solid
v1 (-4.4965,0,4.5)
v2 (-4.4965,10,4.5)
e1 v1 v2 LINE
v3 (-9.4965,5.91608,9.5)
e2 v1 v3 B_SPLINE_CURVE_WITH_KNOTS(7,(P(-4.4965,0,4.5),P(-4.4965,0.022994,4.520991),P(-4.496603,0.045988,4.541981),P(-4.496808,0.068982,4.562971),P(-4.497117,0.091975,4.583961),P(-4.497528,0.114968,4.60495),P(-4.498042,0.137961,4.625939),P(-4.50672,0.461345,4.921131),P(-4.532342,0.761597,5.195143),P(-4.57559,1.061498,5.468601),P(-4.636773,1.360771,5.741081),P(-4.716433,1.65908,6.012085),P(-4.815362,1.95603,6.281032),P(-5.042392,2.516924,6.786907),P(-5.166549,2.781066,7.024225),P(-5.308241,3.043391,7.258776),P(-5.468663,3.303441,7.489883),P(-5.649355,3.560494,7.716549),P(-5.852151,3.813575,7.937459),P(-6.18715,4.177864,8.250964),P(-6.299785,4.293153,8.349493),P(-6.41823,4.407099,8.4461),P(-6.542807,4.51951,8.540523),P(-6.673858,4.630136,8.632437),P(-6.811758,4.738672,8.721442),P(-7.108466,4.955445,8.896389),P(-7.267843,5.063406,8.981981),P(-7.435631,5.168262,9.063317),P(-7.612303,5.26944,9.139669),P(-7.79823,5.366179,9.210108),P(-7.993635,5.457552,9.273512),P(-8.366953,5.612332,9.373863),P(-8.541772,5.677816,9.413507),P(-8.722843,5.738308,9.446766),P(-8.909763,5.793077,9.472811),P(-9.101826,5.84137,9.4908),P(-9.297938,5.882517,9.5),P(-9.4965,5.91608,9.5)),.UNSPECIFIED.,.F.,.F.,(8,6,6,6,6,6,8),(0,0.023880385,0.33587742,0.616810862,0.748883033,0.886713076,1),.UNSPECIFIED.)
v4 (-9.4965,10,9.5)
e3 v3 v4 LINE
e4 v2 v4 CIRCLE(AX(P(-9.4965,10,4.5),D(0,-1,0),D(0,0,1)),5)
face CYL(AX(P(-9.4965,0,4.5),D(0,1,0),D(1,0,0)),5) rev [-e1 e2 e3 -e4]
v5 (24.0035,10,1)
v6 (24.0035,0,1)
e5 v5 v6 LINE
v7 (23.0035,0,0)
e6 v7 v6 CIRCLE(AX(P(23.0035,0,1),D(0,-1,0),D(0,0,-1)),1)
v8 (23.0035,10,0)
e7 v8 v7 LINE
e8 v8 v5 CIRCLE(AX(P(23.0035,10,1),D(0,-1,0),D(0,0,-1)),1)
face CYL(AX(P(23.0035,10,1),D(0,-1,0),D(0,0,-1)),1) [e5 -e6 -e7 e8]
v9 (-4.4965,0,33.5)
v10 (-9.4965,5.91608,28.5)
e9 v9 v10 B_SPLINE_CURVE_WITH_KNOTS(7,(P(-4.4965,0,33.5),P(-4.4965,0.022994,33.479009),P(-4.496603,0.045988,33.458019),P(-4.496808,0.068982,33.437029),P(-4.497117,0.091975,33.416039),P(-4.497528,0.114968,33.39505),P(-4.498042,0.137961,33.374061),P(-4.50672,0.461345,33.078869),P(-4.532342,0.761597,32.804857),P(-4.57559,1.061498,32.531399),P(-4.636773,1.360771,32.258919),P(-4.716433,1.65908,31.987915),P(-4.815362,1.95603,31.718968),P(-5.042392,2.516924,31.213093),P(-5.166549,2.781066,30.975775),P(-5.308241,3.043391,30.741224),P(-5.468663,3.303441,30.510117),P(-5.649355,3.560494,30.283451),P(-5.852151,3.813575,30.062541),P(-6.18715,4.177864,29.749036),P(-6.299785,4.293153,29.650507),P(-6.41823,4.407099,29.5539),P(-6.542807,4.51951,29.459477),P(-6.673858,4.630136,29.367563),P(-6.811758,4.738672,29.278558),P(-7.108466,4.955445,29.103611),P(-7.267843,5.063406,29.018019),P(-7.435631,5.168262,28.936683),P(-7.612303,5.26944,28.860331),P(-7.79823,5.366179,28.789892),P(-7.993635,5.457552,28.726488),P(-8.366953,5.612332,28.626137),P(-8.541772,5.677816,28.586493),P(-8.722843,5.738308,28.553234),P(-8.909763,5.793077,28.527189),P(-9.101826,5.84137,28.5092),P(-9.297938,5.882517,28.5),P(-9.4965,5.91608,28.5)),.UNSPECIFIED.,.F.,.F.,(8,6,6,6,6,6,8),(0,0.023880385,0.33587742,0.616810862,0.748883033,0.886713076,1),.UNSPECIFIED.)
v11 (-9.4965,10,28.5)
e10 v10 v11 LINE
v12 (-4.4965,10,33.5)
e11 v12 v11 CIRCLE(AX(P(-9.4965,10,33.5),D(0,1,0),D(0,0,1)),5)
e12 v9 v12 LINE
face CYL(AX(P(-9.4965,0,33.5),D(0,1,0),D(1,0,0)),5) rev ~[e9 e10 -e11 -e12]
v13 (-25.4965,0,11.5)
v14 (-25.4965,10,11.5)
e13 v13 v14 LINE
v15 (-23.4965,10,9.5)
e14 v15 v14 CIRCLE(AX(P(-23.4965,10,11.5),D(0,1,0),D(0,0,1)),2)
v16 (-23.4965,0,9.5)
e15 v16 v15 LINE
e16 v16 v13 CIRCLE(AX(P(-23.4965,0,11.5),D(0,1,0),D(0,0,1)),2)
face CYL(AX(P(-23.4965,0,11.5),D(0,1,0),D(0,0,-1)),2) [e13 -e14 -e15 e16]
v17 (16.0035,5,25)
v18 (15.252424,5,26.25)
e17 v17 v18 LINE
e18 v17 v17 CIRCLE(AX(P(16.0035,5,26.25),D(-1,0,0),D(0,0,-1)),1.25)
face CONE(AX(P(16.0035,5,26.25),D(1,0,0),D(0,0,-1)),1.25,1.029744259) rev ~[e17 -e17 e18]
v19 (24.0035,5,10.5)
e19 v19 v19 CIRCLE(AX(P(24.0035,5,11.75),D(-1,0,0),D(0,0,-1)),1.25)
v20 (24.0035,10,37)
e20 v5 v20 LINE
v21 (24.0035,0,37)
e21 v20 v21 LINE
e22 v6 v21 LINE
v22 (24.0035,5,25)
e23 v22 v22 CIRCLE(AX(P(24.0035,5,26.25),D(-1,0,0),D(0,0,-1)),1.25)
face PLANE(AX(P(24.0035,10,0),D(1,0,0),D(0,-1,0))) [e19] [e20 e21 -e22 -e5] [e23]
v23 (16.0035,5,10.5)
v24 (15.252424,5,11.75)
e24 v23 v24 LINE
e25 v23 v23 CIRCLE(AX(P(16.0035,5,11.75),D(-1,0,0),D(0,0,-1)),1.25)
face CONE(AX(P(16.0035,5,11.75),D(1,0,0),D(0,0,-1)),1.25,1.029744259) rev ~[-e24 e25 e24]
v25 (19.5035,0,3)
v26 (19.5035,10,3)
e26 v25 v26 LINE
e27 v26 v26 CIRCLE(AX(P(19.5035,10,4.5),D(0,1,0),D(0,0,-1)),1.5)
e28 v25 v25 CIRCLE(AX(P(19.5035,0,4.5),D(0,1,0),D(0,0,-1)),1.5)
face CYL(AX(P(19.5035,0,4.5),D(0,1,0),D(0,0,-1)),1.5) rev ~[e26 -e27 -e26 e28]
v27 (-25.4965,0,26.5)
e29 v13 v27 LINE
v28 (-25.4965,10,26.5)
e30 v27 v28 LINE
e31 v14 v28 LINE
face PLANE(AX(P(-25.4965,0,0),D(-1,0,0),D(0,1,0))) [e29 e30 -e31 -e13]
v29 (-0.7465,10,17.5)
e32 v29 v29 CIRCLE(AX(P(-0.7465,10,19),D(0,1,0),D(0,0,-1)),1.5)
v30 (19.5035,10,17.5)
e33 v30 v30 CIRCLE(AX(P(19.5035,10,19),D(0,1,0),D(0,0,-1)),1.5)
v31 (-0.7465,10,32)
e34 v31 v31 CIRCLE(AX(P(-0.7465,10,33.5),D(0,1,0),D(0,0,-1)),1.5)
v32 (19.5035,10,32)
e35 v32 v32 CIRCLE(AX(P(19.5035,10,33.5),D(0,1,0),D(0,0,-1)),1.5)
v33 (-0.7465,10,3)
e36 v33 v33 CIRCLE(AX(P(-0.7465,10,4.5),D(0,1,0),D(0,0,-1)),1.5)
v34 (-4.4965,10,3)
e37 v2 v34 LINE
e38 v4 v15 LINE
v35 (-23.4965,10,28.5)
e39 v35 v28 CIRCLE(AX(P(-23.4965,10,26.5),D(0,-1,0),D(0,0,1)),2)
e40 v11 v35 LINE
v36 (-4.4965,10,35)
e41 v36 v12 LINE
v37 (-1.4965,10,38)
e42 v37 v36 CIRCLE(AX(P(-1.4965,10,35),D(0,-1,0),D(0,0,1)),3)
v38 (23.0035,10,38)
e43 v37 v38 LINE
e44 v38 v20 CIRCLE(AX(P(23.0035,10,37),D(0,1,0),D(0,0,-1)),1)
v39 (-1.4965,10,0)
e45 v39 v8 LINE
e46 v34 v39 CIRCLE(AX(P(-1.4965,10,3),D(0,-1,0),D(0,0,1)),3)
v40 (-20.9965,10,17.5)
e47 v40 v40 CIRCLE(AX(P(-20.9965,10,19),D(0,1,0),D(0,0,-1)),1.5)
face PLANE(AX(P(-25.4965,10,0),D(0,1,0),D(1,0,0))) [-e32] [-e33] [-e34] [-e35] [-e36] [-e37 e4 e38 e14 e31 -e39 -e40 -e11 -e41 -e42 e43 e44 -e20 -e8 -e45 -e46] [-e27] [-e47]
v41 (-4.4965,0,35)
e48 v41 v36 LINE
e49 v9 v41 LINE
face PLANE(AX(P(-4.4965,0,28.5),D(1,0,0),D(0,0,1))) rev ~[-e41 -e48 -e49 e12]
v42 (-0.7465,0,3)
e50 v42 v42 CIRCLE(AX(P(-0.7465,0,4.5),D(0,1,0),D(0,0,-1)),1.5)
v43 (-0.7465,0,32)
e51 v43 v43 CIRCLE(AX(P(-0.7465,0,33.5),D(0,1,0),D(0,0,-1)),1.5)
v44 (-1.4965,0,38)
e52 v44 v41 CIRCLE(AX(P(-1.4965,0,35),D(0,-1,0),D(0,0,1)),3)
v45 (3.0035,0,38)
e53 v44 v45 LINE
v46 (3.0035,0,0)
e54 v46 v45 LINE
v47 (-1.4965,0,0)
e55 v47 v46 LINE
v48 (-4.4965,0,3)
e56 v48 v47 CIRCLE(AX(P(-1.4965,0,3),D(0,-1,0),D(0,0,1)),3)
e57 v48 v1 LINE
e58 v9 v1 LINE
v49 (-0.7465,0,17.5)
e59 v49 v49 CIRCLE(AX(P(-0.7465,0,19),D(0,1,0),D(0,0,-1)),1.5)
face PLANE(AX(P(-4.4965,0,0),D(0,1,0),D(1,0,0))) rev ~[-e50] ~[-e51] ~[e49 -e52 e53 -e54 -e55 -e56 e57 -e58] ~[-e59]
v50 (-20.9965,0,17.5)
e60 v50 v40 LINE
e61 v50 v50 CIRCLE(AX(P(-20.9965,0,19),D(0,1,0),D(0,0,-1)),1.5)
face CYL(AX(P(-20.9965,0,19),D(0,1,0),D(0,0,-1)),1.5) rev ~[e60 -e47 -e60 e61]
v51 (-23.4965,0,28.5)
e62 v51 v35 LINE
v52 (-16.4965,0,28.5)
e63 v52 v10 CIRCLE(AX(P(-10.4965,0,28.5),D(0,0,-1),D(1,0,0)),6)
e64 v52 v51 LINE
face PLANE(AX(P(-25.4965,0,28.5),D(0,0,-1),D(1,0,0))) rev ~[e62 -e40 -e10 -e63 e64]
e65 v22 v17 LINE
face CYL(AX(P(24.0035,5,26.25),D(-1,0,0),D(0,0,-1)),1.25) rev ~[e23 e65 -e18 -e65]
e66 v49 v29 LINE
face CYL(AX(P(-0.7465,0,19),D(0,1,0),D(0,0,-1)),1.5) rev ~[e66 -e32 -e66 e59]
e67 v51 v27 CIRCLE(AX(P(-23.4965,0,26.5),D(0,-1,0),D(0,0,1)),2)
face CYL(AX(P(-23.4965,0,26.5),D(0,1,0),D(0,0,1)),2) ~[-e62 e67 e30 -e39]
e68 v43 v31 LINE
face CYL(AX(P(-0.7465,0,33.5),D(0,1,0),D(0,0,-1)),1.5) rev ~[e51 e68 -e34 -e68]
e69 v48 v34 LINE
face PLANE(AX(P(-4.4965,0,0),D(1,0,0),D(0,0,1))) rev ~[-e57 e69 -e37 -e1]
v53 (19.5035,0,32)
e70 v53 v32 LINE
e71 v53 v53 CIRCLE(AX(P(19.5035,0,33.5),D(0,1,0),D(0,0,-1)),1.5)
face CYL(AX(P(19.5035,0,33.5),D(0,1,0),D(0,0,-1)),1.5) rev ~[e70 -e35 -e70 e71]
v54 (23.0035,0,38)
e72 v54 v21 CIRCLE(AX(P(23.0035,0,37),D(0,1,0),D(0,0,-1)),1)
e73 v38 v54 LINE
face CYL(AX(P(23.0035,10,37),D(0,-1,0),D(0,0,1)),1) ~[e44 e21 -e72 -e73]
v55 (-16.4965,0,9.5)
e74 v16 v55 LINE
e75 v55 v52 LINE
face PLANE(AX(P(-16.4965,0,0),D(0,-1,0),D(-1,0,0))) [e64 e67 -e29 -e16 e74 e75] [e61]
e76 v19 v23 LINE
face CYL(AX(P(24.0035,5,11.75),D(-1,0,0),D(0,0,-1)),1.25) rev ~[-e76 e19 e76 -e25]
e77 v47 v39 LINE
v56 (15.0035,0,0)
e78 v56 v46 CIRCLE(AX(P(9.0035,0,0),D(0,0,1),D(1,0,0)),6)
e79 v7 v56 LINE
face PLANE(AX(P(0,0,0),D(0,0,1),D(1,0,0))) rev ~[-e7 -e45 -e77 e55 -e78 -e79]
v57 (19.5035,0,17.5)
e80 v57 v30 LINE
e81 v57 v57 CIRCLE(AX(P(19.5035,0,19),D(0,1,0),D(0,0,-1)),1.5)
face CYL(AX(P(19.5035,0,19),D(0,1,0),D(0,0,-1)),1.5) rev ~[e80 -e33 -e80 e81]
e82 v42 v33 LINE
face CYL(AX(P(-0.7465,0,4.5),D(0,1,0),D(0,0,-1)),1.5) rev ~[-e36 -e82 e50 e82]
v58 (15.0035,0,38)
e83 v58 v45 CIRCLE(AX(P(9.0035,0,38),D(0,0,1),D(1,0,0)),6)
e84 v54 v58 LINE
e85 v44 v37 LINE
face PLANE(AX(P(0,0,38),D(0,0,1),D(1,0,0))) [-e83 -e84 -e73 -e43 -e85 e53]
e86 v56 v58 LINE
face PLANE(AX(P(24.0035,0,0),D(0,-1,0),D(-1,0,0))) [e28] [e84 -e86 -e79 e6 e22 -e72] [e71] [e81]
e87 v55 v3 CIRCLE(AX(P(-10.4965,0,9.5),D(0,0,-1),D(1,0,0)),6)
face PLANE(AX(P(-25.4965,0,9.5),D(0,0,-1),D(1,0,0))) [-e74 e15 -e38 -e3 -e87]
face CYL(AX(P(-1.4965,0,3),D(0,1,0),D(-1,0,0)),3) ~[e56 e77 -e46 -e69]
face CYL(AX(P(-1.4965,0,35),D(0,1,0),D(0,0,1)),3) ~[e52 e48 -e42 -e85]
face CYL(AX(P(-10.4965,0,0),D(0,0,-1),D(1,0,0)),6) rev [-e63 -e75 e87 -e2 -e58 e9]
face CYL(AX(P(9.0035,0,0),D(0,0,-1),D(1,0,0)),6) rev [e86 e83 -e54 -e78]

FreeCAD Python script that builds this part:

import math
import FreeCAD as App
import Part
import Sketcher
from FreeCAD import Vector


def edges_at(feature, points):
    """Names of the edges that pass closest to the given points."""
    edges = feature.Shape.Edges
    near = lambda p: min(range(len(edges)), key=lambda i: edges[i].distToShape(Part.Vertex(*p))[0])
    return sorted({f"Edge{near(p) + 1}" for p in points})

doc = App.newDocument("Part")
body = doc.addObject("PartDesign::Body", "Body")

# Sketch on XY plane
sketch1 = doc.addObject("Sketcher::SketchObject", "Sketch")
body.addObject(sketch1)
sketch1.AttachmentSupport = (doc.XY_Plane, [""])
sketch1.MapMode = "FlatFace"
sketch1.addGeometry([
    Part.ArcOfCircle(Part.Circle(Vector(9, 0, 0), Vector(0, 0, 1), 6), math.radians(0), math.radians(180)),  # 0
    Part.LineSegment(Vector(15, 0, 0), Vector(24, 0, 0)),  # 1
    Part.LineSegment(Vector(24, 0, 0), Vector(24, 10, 0)),  # 2
    Part.LineSegment(Vector(24, 10, 0), Vector(-25, 10, 0)),  # 3
    Part.LineSegment(Vector(-25, 10, 0), Vector(-25, 0, 0)),  # 4
    Part.LineSegment(Vector(-25, 0, 0), Vector(-16, 0, 0)),  # 5
    Part.ArcOfCircle(Part.Circle(Vector(-10, 0, 0), Vector(0, 0, 1), 6), math.radians(0), math.radians(180)),  # 6
    Part.LineSegment(Vector(-4, 0, 0), Vector(3, 0, 0)),  # 7
], False)
sketch1.addConstraint([
    Sketcher.Constraint("Coincident", 0, 1, 1, 1),
    Sketcher.Constraint("Coincident", 1, 2, 2, 1),
    Sketcher.Constraint("Coincident", 2, 2, 3, 1),
    Sketcher.Constraint("Coincident", 3, 2, 4, 1),
    Sketcher.Constraint("Coincident", 4, 2, 5, 1),
    Sketcher.Constraint("Coincident", 5, 2, 6, 2),
    Sketcher.Constraint("Coincident", 6, 1, 7, 1),
    Sketcher.Constraint("Coincident", 7, 2, 0, 2),
    Sketcher.Constraint("Horizontal", 1),
    Sketcher.Constraint("Vertical", 2),
    Sketcher.Constraint("Horizontal", 3),
    Sketcher.Constraint("Vertical", 4),
    Sketcher.Constraint("Horizontal", 5),
    Sketcher.Constraint("Horizontal", 7),
    Sketcher.Constraint("Equal", 0, 6),
    Sketcher.Constraint("PointOnObject", 0, 3, -1),
    Sketcher.Constraint("PointOnObject", 6, 3, -1),
    Sketcher.Constraint("PointOnObject", 0, 1, -1),
    Sketcher.Constraint("PointOnObject", 4, 2, -1),
    Sketcher.Constraint("PointOnObject", 6, 1, -1),
    Sketcher.Constraint("Equal", 1, 5),
    Sketcher.Constraint("Radius", 0, 6.0),
    Sketcher.Constraint("DistanceX", 1, 1, 1, 2, 9.0),
    Sketcher.Constraint("DistanceY", 2, 1, 2, 2, 10.0),
    Sketcher.Constraint("DistanceX", 6, 3, 0, 3, 19.5),
    Sketcher.Constraint("DistanceX", -1, 1, 0, 3, 9.0035),
])
pad1 = doc.addObject("PartDesign::Pad", "Pad")
body.addObject(pad1)
pad1.Profile = sketch1
pad1.Length = 38

# Sketch on XZ plane
sketch2 = doc.addObject("Sketcher::SketchObject", "Sketch001")
body.addObject(sketch2)
sketch2.AttachmentSupport = (doc.XZ_Plane, [""])
sketch2.MapMode = "FlatFace"
sketch2.addGeometry([
    Part.LineSegment(Vector(-25, 10, 0), Vector(-25, 0, 0)),  # 0
    Part.LineSegment(Vector(-25, 0, 0), Vector(-4, 0, 0)),  # 1
    Part.LineSegment(Vector(-4, 0, 0), Vector(-4, 10, 0)),  # 2
    Part.LineSegment(Vector(-4, 10, 0), Vector(-25, 10, 0)),  # 3
    Part.LineSegment(Vector(-25, 38, 0), Vector(-25, 28, 0)),  # 4
    Part.LineSegment(Vector(-25, 28, 0), Vector(-4, 28, 0)),  # 5
    Part.LineSegment(Vector(-4, 28, 0), Vector(-4, 38, 0)),  # 6
    Part.LineSegment(Vector(-4, 38, 0), Vector(-25, 38, 0)),  # 7
], False)
sketch2.addConstraint([
    Sketcher.Constraint("Coincident", 0, 2, 1, 1),
    Sketcher.Constraint("Coincident", 1, 2, 2, 1),
    Sketcher.Constraint("Coincident", 2, 2, 3, 1),
    Sketcher.Constraint("Coincident", 3, 2, 0, 1),
    Sketcher.Constraint("Coincident", 4, 2, 5, 1),
    Sketcher.Constraint("Coincident", 5, 2, 6, 1),
    Sketcher.Constraint("Coincident", 6, 2, 7, 1),
    Sketcher.Constraint("Coincident", 7, 2, 4, 1),
    Sketcher.Constraint("Vertical", 0),
    Sketcher.Constraint("Horizontal", 1),
    Sketcher.Constraint("Vertical", 2),
    Sketcher.Constraint("Horizontal", 3),
    Sketcher.Constraint("Vertical", 4),
    Sketcher.Constraint("Horizontal", 5),
    Sketcher.Constraint("Vertical", 6),
    Sketcher.Constraint("Horizontal", 7),
    Sketcher.Constraint("PointOnObject", 0, 2, -1),
    Sketcher.Constraint("Vertical", 3, 2, 4, 2),
    Sketcher.Constraint("Vertical", 2, 2, 5, 2),
    Sketcher.Constraint("Equal", 2, 4),
    Sketcher.Constraint("DistanceY", 0, 2, 0, 1, 9.5),
    Sketcher.Constraint("DistanceY", 3, 2, 4, 2, 19.0),
    Sketcher.Constraint("DistanceX", 1, 1, 1, 2, 21.0),
    Sketcher.Constraint("DistanceX", 0, 2, -1, 1, 25.4965),
])
pocket1 = doc.addObject("PartDesign::Pocket", "Pocket")
body.addObject(pocket1)
pocket1.Profile = sketch2
pocket1.Type = "ThroughAll"
doc.recompute()

fillet = doc.addObject("PartDesign::Fillet", "Fillet")
body.addObject(fillet)
fillet.Base = (pocket1, edges_at(pocket1, [(-4.497, 5, 28.5), (-4.497, 5, 9.5)]))
fillet.Radius = 5
doc.recompute()

fillet2 = doc.addObject("PartDesign::Fillet", "Fillet001")
body.addObject(fillet2)
fillet2.Base = (fillet, edges_at(fillet, [(-4.497, 5, 0), (-4.497, 5, 38)]))
fillet2.Radius = 3
doc.recompute()

fillet3 = doc.addObject("PartDesign::Fillet", "Fillet002")
body.addObject(fillet3)
fillet3.Base = (fillet2, edges_at(fillet2, [(24.003, 5, 38), (24.003, 5, 0)]))
fillet3.Radius = 1
doc.recompute()

fillet4 = doc.addObject("PartDesign::Fillet", "Fillet003")
body.addObject(fillet4)
fillet4.Base = (fillet3, edges_at(fillet3, [(-25.497, 5, 9.5), (-25.497, 5, 28.5)]))
fillet4.Radius = 2

# Sketch on XZ plane
sketch3 = doc.addObject("Sketcher::SketchObject", "Sketch002")
body.addObject(sketch3)
sketch3.AttachmentSupport = (doc.XZ_Plane, [""])
sketch3.MapMode = "FlatFace"
sketch3.addGeometry([
    Part.Circle(Vector(-0.7, 4.5, 0), Vector(0, 0, 1), 1.5),  # 0
    Part.Circle(Vector(-0.7, 19, 0), Vector(0, 0, 1), 1.5),  # 1
    Part.Circle(Vector(-0.7, 33.5, 0), Vector(0, 0, 1), 1.5),  # 2
    Part.Circle(Vector(19.5, 4.5, 0), Vector(0, 0, 1), 1.5),  # 3
    Part.Circle(Vector(19.5, 19, 0), Vector(0, 0, 1), 1.5),  # 4
    Part.Circle(Vector(19.5, 33.5, 0), Vector(0, 0, 1), 1.5),  # 5
    Part.Circle(Vector(-21, 19, 0), Vector(0, 0, 1), 1.5),  # 6
], False)
sketch3.addConstraint([
    Sketcher.Constraint("Equal", 0, 1),
    Sketcher.Constraint("Equal", 1, 2),
    Sketcher.Constraint("Equal", 2, 3),
    Sketcher.Constraint("Equal", 3, 4),
    Sketcher.Constraint("Equal", 4, 5),
    Sketcher.Constraint("Equal", 5, 6),
    Sketcher.Constraint("Horizontal", 0, 3, 3, 3),
    Sketcher.Constraint("Horizontal", 1, 3, 4, 3),
    Sketcher.Constraint("Horizontal", 2, 3, 5, 3),
    Sketcher.Constraint("Horizontal", 4, 3, 6, 3),
    Sketcher.Constraint("Vertical", 0, 3, 1, 3),
    Sketcher.Constraint("Vertical", 1, 3, 2, 3),
    Sketcher.Constraint("Vertical", 3, 3, 4, 3),
    Sketcher.Constraint("Vertical", 4, 3, 5, 3),
    Sketcher.Constraint("Diameter", 0, 3.0),
    Sketcher.Constraint("DistanceY", -1, 1, 1, 3, 19.0),
    Sketcher.Constraint("DistanceY", 0, 3, 2, 3, 29.0),
    Sketcher.Constraint("DistanceY", -1, 1, 0, 3, 4.5),
    Sketcher.Constraint("DistanceX", 6, 3, 4, 3, 40.5),
    Sketcher.Constraint("DistanceX", 0, 3, 3, 3, 20.25),
    Sketcher.Constraint("DistanceX", 0, 3, -1, 1, 0.7465),
])
doc.recompute()
hole = doc.addObject("PartDesign::Hole", "Hole")
body.addObject(hole)
hole.Profile = sketch3
hole.ThreadType = "None"
hole.Diameter = 3
hole.DepthType = "ThroughAll"

# Sketch on YZ plane
sketch4 = doc.addObject("Sketcher::SketchObject", "Sketch003")
body.addObject(sketch4)
sketch4.AttachmentSupport = (doc.YZ_Plane, [""])
sketch4.MapMode = "FlatFace"
sketch4.AttachmentOffset = App.Placement(Vector(0, 0, 24.0035), App.Rotation())
sketch4.addGeometry([
    Part.Circle(Vector(5, 26.2, 0), Vector(0, 0, 1), 1.2),
    Part.Circle(Vector(5, 11.8, 0), Vector(0, 0, 1), 1.2),
], False)
sketch4.addConstraint([
    Sketcher.Constraint("Equal", 0, 1),
    Sketcher.Constraint("Vertical", 0, 3, 1, 3),
    Sketcher.Constraint("Diameter", 0, 2.5),
    Sketcher.Constraint("DistanceX", -1, 1, 0, 3, 5.0),
    Sketcher.Constraint("DistanceY", 1, 3, 0, 3, 14.5),
    Sketcher.Constraint("DistanceY", -1, 1, 0, 3, 26.25),
])
doc.recompute()
hole2 = doc.addObject("PartDesign::Hole", "Hole001")
body.addObject(hole2)
hole2.Profile = sketch4
hole2.ThreadType = "None"
hole2.Diameter = 2.5
hole2.DepthType = "Dimension"
hole2.Depth = 8
hole2.DrillPoint = "Angled"
hole2.DrillPointAngle = 118

doc.recompute()
